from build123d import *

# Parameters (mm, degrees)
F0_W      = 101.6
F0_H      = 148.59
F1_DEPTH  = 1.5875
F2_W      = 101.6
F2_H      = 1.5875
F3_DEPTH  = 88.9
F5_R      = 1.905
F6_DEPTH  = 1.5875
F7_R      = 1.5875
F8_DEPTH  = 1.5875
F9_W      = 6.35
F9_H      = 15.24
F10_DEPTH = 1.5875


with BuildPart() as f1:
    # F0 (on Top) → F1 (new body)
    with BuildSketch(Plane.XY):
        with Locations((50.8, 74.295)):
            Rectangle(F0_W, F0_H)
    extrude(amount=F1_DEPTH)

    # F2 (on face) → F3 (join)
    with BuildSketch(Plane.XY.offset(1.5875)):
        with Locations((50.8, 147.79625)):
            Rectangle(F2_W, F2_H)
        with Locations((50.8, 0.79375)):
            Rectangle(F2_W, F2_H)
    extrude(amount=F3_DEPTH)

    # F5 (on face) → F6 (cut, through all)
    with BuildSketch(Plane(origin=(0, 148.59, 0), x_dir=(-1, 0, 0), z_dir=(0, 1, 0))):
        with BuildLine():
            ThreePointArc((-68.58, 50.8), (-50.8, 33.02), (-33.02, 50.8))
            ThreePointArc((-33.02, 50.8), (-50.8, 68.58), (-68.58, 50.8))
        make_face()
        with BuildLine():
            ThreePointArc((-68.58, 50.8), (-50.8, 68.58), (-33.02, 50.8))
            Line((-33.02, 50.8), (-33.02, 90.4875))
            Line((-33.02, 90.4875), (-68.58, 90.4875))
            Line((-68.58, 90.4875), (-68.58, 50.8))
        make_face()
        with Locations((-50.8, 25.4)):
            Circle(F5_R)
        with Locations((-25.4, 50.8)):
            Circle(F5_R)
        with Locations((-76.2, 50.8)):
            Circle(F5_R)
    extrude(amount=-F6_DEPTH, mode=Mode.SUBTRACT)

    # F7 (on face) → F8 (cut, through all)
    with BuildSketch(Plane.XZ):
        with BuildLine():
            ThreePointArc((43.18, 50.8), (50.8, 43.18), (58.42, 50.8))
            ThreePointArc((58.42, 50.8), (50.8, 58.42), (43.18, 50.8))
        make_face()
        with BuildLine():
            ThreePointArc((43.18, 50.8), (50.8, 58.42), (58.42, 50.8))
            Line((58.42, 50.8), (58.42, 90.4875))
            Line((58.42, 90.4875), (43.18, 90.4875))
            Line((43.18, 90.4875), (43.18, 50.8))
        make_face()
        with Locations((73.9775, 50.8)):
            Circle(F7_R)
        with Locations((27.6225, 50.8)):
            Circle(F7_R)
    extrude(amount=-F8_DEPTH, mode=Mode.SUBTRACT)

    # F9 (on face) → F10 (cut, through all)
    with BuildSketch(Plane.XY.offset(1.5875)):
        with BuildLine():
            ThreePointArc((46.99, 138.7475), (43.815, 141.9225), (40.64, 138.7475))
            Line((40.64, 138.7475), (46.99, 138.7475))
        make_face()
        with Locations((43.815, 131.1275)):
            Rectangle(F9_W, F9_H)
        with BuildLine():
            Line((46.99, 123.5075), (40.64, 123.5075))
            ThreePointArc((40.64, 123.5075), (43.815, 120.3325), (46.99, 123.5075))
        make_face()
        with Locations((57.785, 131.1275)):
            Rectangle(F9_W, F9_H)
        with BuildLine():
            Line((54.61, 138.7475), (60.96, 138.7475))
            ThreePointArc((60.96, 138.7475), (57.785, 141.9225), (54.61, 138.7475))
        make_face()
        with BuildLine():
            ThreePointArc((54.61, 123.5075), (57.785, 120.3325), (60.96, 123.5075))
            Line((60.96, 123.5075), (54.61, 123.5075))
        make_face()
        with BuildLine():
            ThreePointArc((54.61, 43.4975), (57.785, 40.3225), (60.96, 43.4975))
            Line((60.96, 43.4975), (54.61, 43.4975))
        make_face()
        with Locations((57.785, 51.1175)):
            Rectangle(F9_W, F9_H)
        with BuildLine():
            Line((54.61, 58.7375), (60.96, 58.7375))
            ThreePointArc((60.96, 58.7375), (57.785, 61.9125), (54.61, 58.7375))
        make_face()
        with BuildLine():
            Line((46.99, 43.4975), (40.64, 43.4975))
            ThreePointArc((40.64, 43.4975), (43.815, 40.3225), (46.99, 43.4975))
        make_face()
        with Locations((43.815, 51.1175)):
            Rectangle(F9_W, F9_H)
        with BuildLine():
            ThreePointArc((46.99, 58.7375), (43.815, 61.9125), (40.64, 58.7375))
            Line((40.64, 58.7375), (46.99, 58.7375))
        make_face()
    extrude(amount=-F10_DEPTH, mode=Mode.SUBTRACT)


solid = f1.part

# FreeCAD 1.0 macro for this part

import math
import FreeCAD as App
import Part
import Sketcher
Q = App.Units.Quantity


def add_polygon(sketch, points):
    """Adds a closed chain of lines whose ends are joined by coincident constraints."""
    first, n = sketch.GeometryCount, len(points)
    for a, b in zip(points, points[1:] + points[:1]):
        sketch.addGeometry(Part.LineSegment(App.Vector(*a, 0), App.Vector(*b, 0)), False)
    for i in range(n):
        sketch.addConstraint(Sketcher.Constraint("Coincident", first + i, 2, first + (i + 1) % n, 1))

doc = App.newDocument("Part")
body = doc.addObject("PartDesign::Body", "Body")

# Sketch on XY plane
sketch1 = body.newObject("Sketcher::SketchObject", "Sketch")
sketch1.AttachmentSupport = (doc.getObject("XY_Plane"), [""])
sketch1.MapMode = "FlatFace"
add_polygon(sketch1, [(0, 148.59), (0, 0), (101.6, 0), (101.6, 148.59)])  # lines 0-3
sketch1.addConstraint(Sketcher.Constraint("Vertical", 0))
sketch1.addConstraint(Sketcher.Constraint("Horizontal", 1))
sketch1.addConstraint(Sketcher.Constraint("Vertical", 2))
sketch1.addConstraint(Sketcher.Constraint("Horizontal", 3))
sketch1.addConstraint(Sketcher.Constraint("Coincident", 0, 2, -1, 1))
sketch1.addConstraint(Sketcher.Constraint("DistanceX", 1, 1, 1, 2, Q("4 in")))
sketch1.addConstraint(Sketcher.Constraint("DistanceY", 0, 2, 0, 1, Q("5.85 in")))
pad1 = body.newObject("PartDesign::Pad", "Pad")
pad1.Profile = sketch1
pad1.Length = Q("0.0625 in")

# Sketch on XY plane
sketch2 = body.newObject("Sketcher::SketchObject", "Sketch001")
sketch2.AttachmentSupport = (doc.getObject("XY_Plane"), [""])
sketch2.MapMode = "FlatFace"
sketch2.AttachmentOffset = App.Placement(App.Vector(0, 0, 0.0625 * 25.4), App.Rotation())
add_polygon(sketch2, [(0, 148.59), (0, 147.0025), (101.6, 147.0025), (101.6, 148.59)])  # lines 0-3
add_polygon(sketch2, [(0, 1.5875), (0, 0), (101.6, 0), (101.6, 1.5875)])  # lines 4-7
sketch2.addConstraint(Sketcher.Constraint("Vertical", 0))
sketch2.addConstraint(Sketcher.Constraint("Horizontal", 1))
sketch2.addConstraint(Sketcher.Constraint("Vertical", 2))
sketch2.addConstraint(Sketcher.Constraint("Horizontal", 3))
sketch2.addConstraint(Sketcher.Constraint("Vertical", 4))
sketch2.addConstraint(Sketcher.Constraint("Horizontal", 5))
sketch2.addConstraint(Sketcher.Constraint("Vertical", 6))
sketch2.addConstraint(Sketcher.Constraint("Horizontal", 7))
sketch2.addConstraint(Sketcher.Constraint("Coincident", 4, 2, -1, 1))
sketch2.addConstraint(Sketcher.Constraint("PointOnObject", 0, 2, -2))
sketch2.addConstraint(Sketcher.Constraint("Vertical", 2, 2, 5, 2))
sketch2.addConstraint(Sketcher.Constraint("Equal", 2, 4))
sketch2.addConstraint(Sketcher.Constraint("DistanceX", 1, 1, 1, 2, Q("4 in")))
sketch2.addConstraint(Sketcher.Constraint("DistanceY", 0, 2, 0, 1, Q("0.0625 in")))
sketch2.addConstraint(Sketcher.Constraint("DistanceY", -1, 1, 2, 2, Q("5.85 in")))
pad2 = body.newObject("PartDesign::Pad", "Pad001")
pad2.Profile = sketch2
pad2.Length = Q("3.5 in")

# Sketch on XZ plane
sketch3 = body.newObject("Sketcher::SketchObject", "Sketch002")
sketch3.AttachmentSupport = (doc.getObject("XZ_Plane"), [""])
sketch3.MapMode = "FlatFace"
sketch3.AttachmentOffset = App.Placement(App.Vector(0, 0, -5.85 * 25.4), App.Rotation())
sketch3.addGeometry(Part.ArcOfCircle(Part.Circle(App.Vector(50.8, 50.8, 0), App.Vector(0, 0, 1), 17.78), math.radians(180), math.radians(360)), False)
sketch3.addGeometry(Part.LineSegment(App.Vector(33.02, 50.8, 0), App.Vector(33.02, 90.4875, 0)), False)
sketch3.addGeometry(Part.LineSegment(App.Vector(33.02, 90.4875, 0), App.Vector(68.58, 90.4875, 0)), False)
sketch3.addGeometry(Part.LineSegment(App.Vector(68.58, 90.4875, 0), App.Vector(68.58, 50.8, 0)), False)
sketch3.addGeometry(Part.Circle(App.Vector(50.8, 25.4, 0), App.Vector(0, 0, 1), 1.905), False)
sketch3.addGeometry(Part.Circle(App.Vector(25.4, 50.8, 0), App.Vector(0, 0, 1), 1.905), False)
sketch3.addGeometry(Part.Circle(App.Vector(76.2, 50.8, 0), App.Vector(0, 0, 1), 1.905), False)
sketch3.addConstraint(Sketcher.Constraint("Tangent", 0, 1, 1, 1))
sketch3.addConstraint(Sketcher.Constraint("Coincident", 1, 2, 2, 1))
sketch3.addConstraint(Sketcher.Constraint("Coincident", 2, 2, 3, 1))
sketch3.addConstraint(Sketcher.Constraint("Tangent", 3, 2, 0, 2))
sketch3.addConstraint(Sketcher.Constraint("Vertical", 1))
sketch3.addConstraint(Sketcher.Constraint("Horizontal", 2))
sketch3.addConstraint(Sketcher.Constraint("Vertical", 3))
sketch3.addConstraint(Sketcher.Constraint("Equal", 4, 5))
sketch3.addConstraint(Sketcher.Constraint("Equal", 5, 6))
sketch3.addConstraint(Sketcher.Constraint("Horizontal", 0, 3, 5, 3))
sketch3.addConstraint(Sketcher.Constraint("Horizontal", 5, 3, 6, 3))
sketch3.addConstraint(Sketcher.Constraint("Vertical", 0, 3, 4, 3))
sketch3.addConstraint(Sketcher.Constraint("Radius", 0, Q("0.7 in")))
sketch3.addConstraint(Sketcher.Constraint("Diameter", 4, Q("0.15 in")))
sketch3.addConstraint(Sketcher.Constraint("DistanceX", -1, 1, 0, 3, Q("2 in")))
sketch3.addConstraint(Sketcher.Constraint("DistanceY", -1, 1, 0, 3, Q("2 in")))
sketch3.addConstraint(Sketcher.Constraint("DistanceY", -1, 1, 4, 3, Q("1 in")))
sketch3.addConstraint(Sketcher.Constraint("DistanceX", -1, 1, 5, 3, Q("1 in")))
sketch3.addConstraint(Sketcher.Constraint("DistanceX", -1, 1, 6, 3, Q("3 in")))
sketch3.addConstraint(Sketcher.Constraint("DistanceY", 1, 1, 1, 2, Q("1.5625 in")))
pocket1 = body.newObject("PartDesign::Pocket", "Pocket")
pocket1.Profile = sketch3
pocket1.Length = Q("0.0625 in")
pocket1.Reversed = True

# Sketch on XZ plane
sketch4 = body.newObject("Sketcher::SketchObject", "Sketch003")
sketch4.AttachmentSupport = (doc.getObject("XZ_Plane"), [""])
sketch4.MapMode = "FlatFace"
sketch4.addGeometry(Part.ArcOfCircle(Part.Circle(App.Vector(50.8, 50.8, 0), App.Vector(0, 0, 1), 7.62), math.radians(180), math.radians(360)), False)
sketch4.addGeometry(Part.LineSegment(App.Vector(58.42, 50.8, 0), App.Vector(58.42, 90.4875, 0)), False)
sketch4.addGeometry(Part.LineSegment(App.Vector(58.42, 90.4875, 0), App.Vector(43.18, 90.4875, 0)), False)
sketch4.addGeometry(Part.LineSegment(App.Vector(43.18, 90.4875, 0), App.Vector(43.18, 50.8, 0)), False)
sketch4.addGeometry(Part.Circle(App.Vector(73.9775, 50.8, 0), App.Vector(0, 0, 1), 1.5875), False)
sketch4.addGeometry(Part.Circle(App.Vector(27.6225, 50.8, 0), App.Vector(0, 0, 1), 1.5875), False)
sketch4.addConstraint(Sketcher.Constraint("Tangent", 0, 2, 1, 1))
sketch4.addConstraint(Sketcher.Constraint("Coincident", 1, 2, 2, 1))
sketch4.addConstraint(Sketcher.Constraint("Coincident", 2, 2, 3, 1))
sketch4.addConstraint(Sketcher.Constraint("Tangent", 3, 2, 0, 1))
sketch4.addConstraint(Sketcher.Constraint("Vertical", 1))
sketch4.addConstraint(Sketcher.Constraint("Horizontal", 2))
sketch4.addConstraint(Sketcher.Constraint("Vertical", 3))
sketch4.addConstraint(Sketcher.Constraint("Equal", 4, 5))
sketch4.addConstraint(Sketcher.Constraint("Horizontal", 0, 3, 4, 3))
sketch4.addConstraint(Sketcher.Constraint("Horizontal", 4, 3, 5, 3))
sketch4.addConstraint(Sketcher.Constraint("Radius", 0, Q("0.3 in")))
sketch4.addConstraint(Sketcher.Constraint("Diameter", 4, Q("0.125 in")))
sketch4.addConstraint(Sketcher.Constraint("DistanceX", -1, 1, 0, 3, Q("2 in")))
sketch4.addConstraint(Sketcher.Constraint("DistanceY", -1, 1, 0, 3, Q("2 in")))
sketch4.addConstraint(Sketcher.Constraint("DistanceY", 1, 1, 1, 2, Q("1.5625 in")))
sketch4.addConstraint(Sketcher.Constraint("DistanceX", 5, 3, 4, 3, Q("1.825 in")))
sketch4.addConstraint(Sketcher.Constraint("DistanceX", -1, 1, 4, 3, Q("2.9125 in")))
pocket2 = body.newObject("PartDesign::Pocket", "Pocket001")
pocket2.Profile = sketch4
pocket2.Length = Q("0.0625 in")

# Sketch on XY plane
sketch5 = body.newObject("Sketcher::SketchObject", "Sketch004")
sketch5.AttachmentSupport = (doc.getObject("XY_Plane"), [""])
sketch5.MapMode = "FlatFace"
sketch5.AttachmentOffset = App.Placement(App.Vector(0, 0, 0.0625 * 25.4), App.Rotation())
sketch5.addGeometry(Part.ArcOfCircle(Part.Circle(App.Vector(43.815, 138.7475, 0), App.Vector(0, 0, 1), 3.175), math.radians(0), math.radians(180)), False)
sketch5.addGeometry(Part.LineSegment(App.Vector(40.64, 138.7475, 0), App.Vector(40.64, 123.5075, 0)), False)
sketch5.addGeometry(Part.ArcOfCircle(Part.Circle(App.Vector(43.815, 123.5075, 0), App.Vector(0, 0, 1), 3.175), math.radians(180), math.radians(360)), False)
sketch5.addGeometry(Part.LineSegment(App.Vector(46.99, 123.5075, 0), App.Vector(46.99, 138.7475, 0)), False)
sketch5.addGeometry(Part.LineSegment(App.Vector(54.61, 138.7475, 0), App.Vector(54.61, 123.5075, 0)), False)
sketch5.addGeometry(Part.ArcOfCircle(Part.Circle(App.Vector(57.785, 123.5075, 0), App.Vector(0, 0, 1), 3.175), math.radians(180), math.radians(360)), False)
sketch5.addGeometry(Part.LineSegment(App.Vector(60.96, 123.5075, 0), App.Vector(60.96, 138.7475, 0)), False)
sketch5.addGeometry(Part.ArcOfCircle(Part.Circle(App.Vector(57.785, 138.7475, 0), App.Vector(0, 0, 1), 3.175), math.radians(0), math.radians(180)), False)
sketch5.addGeometry(Part.ArcOfCircle(Part.Circle(App.Vector(57.785, 43.4975, 0), App.Vector(0, 0, 1), 3.175), math.radians(180), math.radians(360)), False)
sketch5.addGeometry(Part.LineSegment(App.Vector(60.96, 43.4975, 0), App.Vector(60.96, 58.7375, 0)), False)
sketch5.addGeometry(Part.ArcOfCircle(Part.Circle(App.Vector(57.785, 58.7375, 0), App.Vector(0, 0, 1), 3.175), math.radians(0), math.radians(180)), False)
sketch5.addGeometry(Part.LineSegment(App.Vector(54.61, 58.7375, 0), App.Vector(54.61, 43.4975, 0)), False)
sketch5.addGeometry(Part.ArcOfCircle(Part.Circle(App.Vector(43.815, 43.4975, 0), App.Vector(0, 0, 1), 3.175), math.radians(180), math.radians(360)), False)
sketch5.addGeometry(Part.LineSegment(App.Vector(46.99, 43.4975, 0), App.Vector(46.99, 58.7375, 0)), False)
sketch5.addGeometry(Part.ArcOfCircle(Part.Circle(App.Vector(43.815, 58.7375, 0), App.Vector(0, 0, 1), 3.175), math.radians(0), math.radians(180)), False)
sketch5.addGeometry(Part.LineSegment(App.Vector(40.64, 58.7375, 0), App.Vector(40.64, 43.4975, 0)), False)
sketch5.addConstraint(Sketcher.Constraint("Tangent", 0, 2, 1, 1))
sketch5.addConstraint(Sketcher.Constraint("Tangent", 1, 2, 2, 1))
sketch5.addConstraint(Sketcher.Constraint("Tangent", 2, 2, 3, 1))
sketch5.addConstraint(Sketcher.Constraint("Tangent", 3, 2, 0, 1))
sketch5.addConstraint(Sketcher.Constraint("Tangent", 4, 2, 5, 1))
sketch5.addConstraint(Sketcher.Constraint("Tangent", 5, 2, 6, 1))
sketch5.addConstraint(Sketcher.Constraint("Tangent", 6, 2, 7, 1))
sketch5.addConstraint(Sketcher.Constraint("Tangent", 7, 2, 4, 1))
sketch5.addConstraint(Sketcher.Constraint("Tangent", 8, 2, 9, 1))
sketch5.addConstraint(Sketcher.Constraint("Tangent", 9, 2, 10, 1))
sketch5.addConstraint(Sketcher.Constraint("Tangent", 10, 2, 11, 1))
sketch5.addConstraint(Sketcher.Constraint("Tangent", 11, 2, 8, 1))
sketch5.addConstraint(Sketcher.Constraint("Tangent", 12, 2, 13, 1))
sketch5.addConstraint(Sketcher.Constraint("Tangent", 13, 2, 14, 1))
sketch5.addConstraint(Sketcher.Constraint("Tangent", 14, 2, 15, 1))
sketch5.addConstraint(Sketcher.Constraint("Tangent", 15, 2, 12, 1))
sketch5.addConstraint(Sketcher.Constraint("Vertical", 1))
sketch5.addConstraint(Sketcher.Constraint("Vertical", 3))
sketch5.addConstraint(Sketcher.Constraint("Vertical", 4))
sketch5.addConstraint(Sketcher.Constraint("Vertical", 6))
sketch5.addConstraint(Sketcher.Constraint("Vertical", 9))
sketch5.addConstraint(Sketcher.Constraint("Vertical", 11))
sketch5.addConstraint(Sketcher.Constraint("Vertical", 13))
sketch5.addConstraint(Sketcher.Constraint("Vertical", 15))
sketch5.addConstraint(Sketcher.Constraint("Equal", 2, 5))
sketch5.addConstraint(Sketcher.Constraint("Equal", 7, 8))
sketch5.addConstraint(Sketcher.Constraint("Equal", 10, 12))
sketch5.addConstraint(Sketcher.Constraint("Horizontal", 2, 3, 5, 3))
sketch5.addConstraint(Sketcher.Constraint("Horizontal", 0, 3, 7, 3))
sketch5.addConstraint(Sketcher.Constraint("Horizontal", 8, 3, 12, 3))
sketch5.addConstraint(Sketcher.Constraint("Horizontal", 10, 3, 14, 3))
sketch5.addConstraint(Sketcher.Constraint("Vertical", 7, 3, 8, 3))
sketch5.addConstraint(Sketcher.Constraint("Vertical", 2, 3, 12, 3))
sketch5.addConstraint(Sketcher.Constraint("Equal", 6, 9))
sketch5.addConstraint(Sketcher.Constraint("DistanceY", 1, 2, 1, 1, Q("0.6 in")))
sketch5.addConstraint(Sketcher.Constraint("Radius", 0, Q("0.125 in")))
sketch5.addConstraint(Sketcher.Constraint("DistanceX", -1, 1, 0, 2, Q("1.6 in")))
sketch5.addConstraint(Sketcher.Constraint("DistanceX", -1, 1, 5, 2, Q("2.4 in")))
sketch5.addConstraint(Sketcher.Constraint("DistanceY", 8, 3, 5, 3, Q("3.15 in")))
sketch5.addConstraint(Sketcher.Constraint("DistanceY", -1, 1, 10, 3, Q("2.3125 in")))
pocket3 = body.newObject("PartDesign::Pocket", "Pocket002")
pocket3.Profile = sketch5
pocket3.Type = "ThroughAll"

doc.recompute()
